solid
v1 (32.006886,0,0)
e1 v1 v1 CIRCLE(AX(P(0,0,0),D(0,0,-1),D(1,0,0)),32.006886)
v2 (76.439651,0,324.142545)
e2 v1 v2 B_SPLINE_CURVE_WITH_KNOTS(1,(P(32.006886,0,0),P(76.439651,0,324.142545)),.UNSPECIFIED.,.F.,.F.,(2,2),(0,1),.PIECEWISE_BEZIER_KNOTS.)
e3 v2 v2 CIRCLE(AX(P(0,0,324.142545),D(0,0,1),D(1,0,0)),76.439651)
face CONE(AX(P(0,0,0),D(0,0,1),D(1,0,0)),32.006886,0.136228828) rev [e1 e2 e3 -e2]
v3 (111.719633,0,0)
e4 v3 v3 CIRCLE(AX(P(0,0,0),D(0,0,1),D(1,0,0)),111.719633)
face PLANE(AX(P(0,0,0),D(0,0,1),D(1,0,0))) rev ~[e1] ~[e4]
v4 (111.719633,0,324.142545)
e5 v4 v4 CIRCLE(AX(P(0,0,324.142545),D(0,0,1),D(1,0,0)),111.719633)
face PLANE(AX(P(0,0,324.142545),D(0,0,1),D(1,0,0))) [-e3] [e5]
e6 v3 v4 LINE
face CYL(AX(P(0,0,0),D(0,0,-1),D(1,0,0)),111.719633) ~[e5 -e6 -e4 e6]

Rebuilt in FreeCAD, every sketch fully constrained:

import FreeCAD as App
import Part
import Sketcher

V = App.Vector
Q = App.Units.Quantity

doc = App.newDocument("Part")
params = doc.addObject("Spreadsheet::Sheet", "Params")
for row, (alias, value) in enumerate([
    ("pad1_length", "324.142545 mm"),
], start=1):
    params.set(f"A{row}", alias)
    params.set(f"B{row}", "=" + value)
    params.setAlias(f"B{row}", alias)

body = doc.addObject("PartDesign::Body", "Body")

# Sketch on XY plane
sketch1 = body.newObject("Sketcher::SketchObject", "Sketch")
sketch1.AttachmentSupport = (doc.getObject("XY_Plane"), [""])
sketch1.MapMode = "FlatFace"
sketch1.addGeometry(Part.Circle(V(0, 0, 0), V(0, 0, 1), 112), False)
sketch1.addConstraint(Sketcher.Constraint("Coincident", 0, 3, -1, 1))
sketch1.addConstraint(Sketcher.Constraint("Diameter", 0, Q("223.439266 mm")))
pad1 = body.newObject("PartDesign::Pad", "Pad")
pad1.Profile = sketch1
pad1.setExpression("Length", "Params.pad1_length")

# Sketch on XY plane
sketch2 = body.newObject("Sketcher::SketchObject", "Sketch001")
sketch2.AttachmentSupport = (doc.getObject("XY_Plane"), [""])
sketch2.MapMode = "FlatFace"
sketch2.addGeometry(Part.Circle(V(0, 0, 0), V(0, 0, 1), 32), False)
sketch2.addConstraint(Sketcher.Constraint("Coincident", 0, 3, -1, 1))
sketch2.addConstraint(Sketcher.Constraint("Diameter", 0, Q("64.013772 mm")))

# Sketch on XY plane
sketch3 = body.newObject("Sketcher::SketchObject", "Sketch002")
sketch3.AttachmentSupport = (doc.getObject("XY_Plane"), [""])
sketch3.MapMode = "FlatFace"
sketch3.AttachmentOffset = App.Placement(V(0, 0, 324.142545), App.Rotation())
sketch3.addGeometry(Part.Circle(V(0, 0, 0), V(0, 0, 1), 76), False)
sketch3.addConstraint(Sketcher.Constraint("Coincident", 0, 3, -1, 1))
sketch3.addConstraint(Sketcher.Constraint("Diameter", 0, Q("152.879302 mm")))

subtractiveloft = body.newObject("PartDesign::SubtractiveLoft", "SubtractiveLoft")
subtractiveloft.Profile = sketch2
subtractiveloft.Sections = [sketch3]

doc.recompute()
